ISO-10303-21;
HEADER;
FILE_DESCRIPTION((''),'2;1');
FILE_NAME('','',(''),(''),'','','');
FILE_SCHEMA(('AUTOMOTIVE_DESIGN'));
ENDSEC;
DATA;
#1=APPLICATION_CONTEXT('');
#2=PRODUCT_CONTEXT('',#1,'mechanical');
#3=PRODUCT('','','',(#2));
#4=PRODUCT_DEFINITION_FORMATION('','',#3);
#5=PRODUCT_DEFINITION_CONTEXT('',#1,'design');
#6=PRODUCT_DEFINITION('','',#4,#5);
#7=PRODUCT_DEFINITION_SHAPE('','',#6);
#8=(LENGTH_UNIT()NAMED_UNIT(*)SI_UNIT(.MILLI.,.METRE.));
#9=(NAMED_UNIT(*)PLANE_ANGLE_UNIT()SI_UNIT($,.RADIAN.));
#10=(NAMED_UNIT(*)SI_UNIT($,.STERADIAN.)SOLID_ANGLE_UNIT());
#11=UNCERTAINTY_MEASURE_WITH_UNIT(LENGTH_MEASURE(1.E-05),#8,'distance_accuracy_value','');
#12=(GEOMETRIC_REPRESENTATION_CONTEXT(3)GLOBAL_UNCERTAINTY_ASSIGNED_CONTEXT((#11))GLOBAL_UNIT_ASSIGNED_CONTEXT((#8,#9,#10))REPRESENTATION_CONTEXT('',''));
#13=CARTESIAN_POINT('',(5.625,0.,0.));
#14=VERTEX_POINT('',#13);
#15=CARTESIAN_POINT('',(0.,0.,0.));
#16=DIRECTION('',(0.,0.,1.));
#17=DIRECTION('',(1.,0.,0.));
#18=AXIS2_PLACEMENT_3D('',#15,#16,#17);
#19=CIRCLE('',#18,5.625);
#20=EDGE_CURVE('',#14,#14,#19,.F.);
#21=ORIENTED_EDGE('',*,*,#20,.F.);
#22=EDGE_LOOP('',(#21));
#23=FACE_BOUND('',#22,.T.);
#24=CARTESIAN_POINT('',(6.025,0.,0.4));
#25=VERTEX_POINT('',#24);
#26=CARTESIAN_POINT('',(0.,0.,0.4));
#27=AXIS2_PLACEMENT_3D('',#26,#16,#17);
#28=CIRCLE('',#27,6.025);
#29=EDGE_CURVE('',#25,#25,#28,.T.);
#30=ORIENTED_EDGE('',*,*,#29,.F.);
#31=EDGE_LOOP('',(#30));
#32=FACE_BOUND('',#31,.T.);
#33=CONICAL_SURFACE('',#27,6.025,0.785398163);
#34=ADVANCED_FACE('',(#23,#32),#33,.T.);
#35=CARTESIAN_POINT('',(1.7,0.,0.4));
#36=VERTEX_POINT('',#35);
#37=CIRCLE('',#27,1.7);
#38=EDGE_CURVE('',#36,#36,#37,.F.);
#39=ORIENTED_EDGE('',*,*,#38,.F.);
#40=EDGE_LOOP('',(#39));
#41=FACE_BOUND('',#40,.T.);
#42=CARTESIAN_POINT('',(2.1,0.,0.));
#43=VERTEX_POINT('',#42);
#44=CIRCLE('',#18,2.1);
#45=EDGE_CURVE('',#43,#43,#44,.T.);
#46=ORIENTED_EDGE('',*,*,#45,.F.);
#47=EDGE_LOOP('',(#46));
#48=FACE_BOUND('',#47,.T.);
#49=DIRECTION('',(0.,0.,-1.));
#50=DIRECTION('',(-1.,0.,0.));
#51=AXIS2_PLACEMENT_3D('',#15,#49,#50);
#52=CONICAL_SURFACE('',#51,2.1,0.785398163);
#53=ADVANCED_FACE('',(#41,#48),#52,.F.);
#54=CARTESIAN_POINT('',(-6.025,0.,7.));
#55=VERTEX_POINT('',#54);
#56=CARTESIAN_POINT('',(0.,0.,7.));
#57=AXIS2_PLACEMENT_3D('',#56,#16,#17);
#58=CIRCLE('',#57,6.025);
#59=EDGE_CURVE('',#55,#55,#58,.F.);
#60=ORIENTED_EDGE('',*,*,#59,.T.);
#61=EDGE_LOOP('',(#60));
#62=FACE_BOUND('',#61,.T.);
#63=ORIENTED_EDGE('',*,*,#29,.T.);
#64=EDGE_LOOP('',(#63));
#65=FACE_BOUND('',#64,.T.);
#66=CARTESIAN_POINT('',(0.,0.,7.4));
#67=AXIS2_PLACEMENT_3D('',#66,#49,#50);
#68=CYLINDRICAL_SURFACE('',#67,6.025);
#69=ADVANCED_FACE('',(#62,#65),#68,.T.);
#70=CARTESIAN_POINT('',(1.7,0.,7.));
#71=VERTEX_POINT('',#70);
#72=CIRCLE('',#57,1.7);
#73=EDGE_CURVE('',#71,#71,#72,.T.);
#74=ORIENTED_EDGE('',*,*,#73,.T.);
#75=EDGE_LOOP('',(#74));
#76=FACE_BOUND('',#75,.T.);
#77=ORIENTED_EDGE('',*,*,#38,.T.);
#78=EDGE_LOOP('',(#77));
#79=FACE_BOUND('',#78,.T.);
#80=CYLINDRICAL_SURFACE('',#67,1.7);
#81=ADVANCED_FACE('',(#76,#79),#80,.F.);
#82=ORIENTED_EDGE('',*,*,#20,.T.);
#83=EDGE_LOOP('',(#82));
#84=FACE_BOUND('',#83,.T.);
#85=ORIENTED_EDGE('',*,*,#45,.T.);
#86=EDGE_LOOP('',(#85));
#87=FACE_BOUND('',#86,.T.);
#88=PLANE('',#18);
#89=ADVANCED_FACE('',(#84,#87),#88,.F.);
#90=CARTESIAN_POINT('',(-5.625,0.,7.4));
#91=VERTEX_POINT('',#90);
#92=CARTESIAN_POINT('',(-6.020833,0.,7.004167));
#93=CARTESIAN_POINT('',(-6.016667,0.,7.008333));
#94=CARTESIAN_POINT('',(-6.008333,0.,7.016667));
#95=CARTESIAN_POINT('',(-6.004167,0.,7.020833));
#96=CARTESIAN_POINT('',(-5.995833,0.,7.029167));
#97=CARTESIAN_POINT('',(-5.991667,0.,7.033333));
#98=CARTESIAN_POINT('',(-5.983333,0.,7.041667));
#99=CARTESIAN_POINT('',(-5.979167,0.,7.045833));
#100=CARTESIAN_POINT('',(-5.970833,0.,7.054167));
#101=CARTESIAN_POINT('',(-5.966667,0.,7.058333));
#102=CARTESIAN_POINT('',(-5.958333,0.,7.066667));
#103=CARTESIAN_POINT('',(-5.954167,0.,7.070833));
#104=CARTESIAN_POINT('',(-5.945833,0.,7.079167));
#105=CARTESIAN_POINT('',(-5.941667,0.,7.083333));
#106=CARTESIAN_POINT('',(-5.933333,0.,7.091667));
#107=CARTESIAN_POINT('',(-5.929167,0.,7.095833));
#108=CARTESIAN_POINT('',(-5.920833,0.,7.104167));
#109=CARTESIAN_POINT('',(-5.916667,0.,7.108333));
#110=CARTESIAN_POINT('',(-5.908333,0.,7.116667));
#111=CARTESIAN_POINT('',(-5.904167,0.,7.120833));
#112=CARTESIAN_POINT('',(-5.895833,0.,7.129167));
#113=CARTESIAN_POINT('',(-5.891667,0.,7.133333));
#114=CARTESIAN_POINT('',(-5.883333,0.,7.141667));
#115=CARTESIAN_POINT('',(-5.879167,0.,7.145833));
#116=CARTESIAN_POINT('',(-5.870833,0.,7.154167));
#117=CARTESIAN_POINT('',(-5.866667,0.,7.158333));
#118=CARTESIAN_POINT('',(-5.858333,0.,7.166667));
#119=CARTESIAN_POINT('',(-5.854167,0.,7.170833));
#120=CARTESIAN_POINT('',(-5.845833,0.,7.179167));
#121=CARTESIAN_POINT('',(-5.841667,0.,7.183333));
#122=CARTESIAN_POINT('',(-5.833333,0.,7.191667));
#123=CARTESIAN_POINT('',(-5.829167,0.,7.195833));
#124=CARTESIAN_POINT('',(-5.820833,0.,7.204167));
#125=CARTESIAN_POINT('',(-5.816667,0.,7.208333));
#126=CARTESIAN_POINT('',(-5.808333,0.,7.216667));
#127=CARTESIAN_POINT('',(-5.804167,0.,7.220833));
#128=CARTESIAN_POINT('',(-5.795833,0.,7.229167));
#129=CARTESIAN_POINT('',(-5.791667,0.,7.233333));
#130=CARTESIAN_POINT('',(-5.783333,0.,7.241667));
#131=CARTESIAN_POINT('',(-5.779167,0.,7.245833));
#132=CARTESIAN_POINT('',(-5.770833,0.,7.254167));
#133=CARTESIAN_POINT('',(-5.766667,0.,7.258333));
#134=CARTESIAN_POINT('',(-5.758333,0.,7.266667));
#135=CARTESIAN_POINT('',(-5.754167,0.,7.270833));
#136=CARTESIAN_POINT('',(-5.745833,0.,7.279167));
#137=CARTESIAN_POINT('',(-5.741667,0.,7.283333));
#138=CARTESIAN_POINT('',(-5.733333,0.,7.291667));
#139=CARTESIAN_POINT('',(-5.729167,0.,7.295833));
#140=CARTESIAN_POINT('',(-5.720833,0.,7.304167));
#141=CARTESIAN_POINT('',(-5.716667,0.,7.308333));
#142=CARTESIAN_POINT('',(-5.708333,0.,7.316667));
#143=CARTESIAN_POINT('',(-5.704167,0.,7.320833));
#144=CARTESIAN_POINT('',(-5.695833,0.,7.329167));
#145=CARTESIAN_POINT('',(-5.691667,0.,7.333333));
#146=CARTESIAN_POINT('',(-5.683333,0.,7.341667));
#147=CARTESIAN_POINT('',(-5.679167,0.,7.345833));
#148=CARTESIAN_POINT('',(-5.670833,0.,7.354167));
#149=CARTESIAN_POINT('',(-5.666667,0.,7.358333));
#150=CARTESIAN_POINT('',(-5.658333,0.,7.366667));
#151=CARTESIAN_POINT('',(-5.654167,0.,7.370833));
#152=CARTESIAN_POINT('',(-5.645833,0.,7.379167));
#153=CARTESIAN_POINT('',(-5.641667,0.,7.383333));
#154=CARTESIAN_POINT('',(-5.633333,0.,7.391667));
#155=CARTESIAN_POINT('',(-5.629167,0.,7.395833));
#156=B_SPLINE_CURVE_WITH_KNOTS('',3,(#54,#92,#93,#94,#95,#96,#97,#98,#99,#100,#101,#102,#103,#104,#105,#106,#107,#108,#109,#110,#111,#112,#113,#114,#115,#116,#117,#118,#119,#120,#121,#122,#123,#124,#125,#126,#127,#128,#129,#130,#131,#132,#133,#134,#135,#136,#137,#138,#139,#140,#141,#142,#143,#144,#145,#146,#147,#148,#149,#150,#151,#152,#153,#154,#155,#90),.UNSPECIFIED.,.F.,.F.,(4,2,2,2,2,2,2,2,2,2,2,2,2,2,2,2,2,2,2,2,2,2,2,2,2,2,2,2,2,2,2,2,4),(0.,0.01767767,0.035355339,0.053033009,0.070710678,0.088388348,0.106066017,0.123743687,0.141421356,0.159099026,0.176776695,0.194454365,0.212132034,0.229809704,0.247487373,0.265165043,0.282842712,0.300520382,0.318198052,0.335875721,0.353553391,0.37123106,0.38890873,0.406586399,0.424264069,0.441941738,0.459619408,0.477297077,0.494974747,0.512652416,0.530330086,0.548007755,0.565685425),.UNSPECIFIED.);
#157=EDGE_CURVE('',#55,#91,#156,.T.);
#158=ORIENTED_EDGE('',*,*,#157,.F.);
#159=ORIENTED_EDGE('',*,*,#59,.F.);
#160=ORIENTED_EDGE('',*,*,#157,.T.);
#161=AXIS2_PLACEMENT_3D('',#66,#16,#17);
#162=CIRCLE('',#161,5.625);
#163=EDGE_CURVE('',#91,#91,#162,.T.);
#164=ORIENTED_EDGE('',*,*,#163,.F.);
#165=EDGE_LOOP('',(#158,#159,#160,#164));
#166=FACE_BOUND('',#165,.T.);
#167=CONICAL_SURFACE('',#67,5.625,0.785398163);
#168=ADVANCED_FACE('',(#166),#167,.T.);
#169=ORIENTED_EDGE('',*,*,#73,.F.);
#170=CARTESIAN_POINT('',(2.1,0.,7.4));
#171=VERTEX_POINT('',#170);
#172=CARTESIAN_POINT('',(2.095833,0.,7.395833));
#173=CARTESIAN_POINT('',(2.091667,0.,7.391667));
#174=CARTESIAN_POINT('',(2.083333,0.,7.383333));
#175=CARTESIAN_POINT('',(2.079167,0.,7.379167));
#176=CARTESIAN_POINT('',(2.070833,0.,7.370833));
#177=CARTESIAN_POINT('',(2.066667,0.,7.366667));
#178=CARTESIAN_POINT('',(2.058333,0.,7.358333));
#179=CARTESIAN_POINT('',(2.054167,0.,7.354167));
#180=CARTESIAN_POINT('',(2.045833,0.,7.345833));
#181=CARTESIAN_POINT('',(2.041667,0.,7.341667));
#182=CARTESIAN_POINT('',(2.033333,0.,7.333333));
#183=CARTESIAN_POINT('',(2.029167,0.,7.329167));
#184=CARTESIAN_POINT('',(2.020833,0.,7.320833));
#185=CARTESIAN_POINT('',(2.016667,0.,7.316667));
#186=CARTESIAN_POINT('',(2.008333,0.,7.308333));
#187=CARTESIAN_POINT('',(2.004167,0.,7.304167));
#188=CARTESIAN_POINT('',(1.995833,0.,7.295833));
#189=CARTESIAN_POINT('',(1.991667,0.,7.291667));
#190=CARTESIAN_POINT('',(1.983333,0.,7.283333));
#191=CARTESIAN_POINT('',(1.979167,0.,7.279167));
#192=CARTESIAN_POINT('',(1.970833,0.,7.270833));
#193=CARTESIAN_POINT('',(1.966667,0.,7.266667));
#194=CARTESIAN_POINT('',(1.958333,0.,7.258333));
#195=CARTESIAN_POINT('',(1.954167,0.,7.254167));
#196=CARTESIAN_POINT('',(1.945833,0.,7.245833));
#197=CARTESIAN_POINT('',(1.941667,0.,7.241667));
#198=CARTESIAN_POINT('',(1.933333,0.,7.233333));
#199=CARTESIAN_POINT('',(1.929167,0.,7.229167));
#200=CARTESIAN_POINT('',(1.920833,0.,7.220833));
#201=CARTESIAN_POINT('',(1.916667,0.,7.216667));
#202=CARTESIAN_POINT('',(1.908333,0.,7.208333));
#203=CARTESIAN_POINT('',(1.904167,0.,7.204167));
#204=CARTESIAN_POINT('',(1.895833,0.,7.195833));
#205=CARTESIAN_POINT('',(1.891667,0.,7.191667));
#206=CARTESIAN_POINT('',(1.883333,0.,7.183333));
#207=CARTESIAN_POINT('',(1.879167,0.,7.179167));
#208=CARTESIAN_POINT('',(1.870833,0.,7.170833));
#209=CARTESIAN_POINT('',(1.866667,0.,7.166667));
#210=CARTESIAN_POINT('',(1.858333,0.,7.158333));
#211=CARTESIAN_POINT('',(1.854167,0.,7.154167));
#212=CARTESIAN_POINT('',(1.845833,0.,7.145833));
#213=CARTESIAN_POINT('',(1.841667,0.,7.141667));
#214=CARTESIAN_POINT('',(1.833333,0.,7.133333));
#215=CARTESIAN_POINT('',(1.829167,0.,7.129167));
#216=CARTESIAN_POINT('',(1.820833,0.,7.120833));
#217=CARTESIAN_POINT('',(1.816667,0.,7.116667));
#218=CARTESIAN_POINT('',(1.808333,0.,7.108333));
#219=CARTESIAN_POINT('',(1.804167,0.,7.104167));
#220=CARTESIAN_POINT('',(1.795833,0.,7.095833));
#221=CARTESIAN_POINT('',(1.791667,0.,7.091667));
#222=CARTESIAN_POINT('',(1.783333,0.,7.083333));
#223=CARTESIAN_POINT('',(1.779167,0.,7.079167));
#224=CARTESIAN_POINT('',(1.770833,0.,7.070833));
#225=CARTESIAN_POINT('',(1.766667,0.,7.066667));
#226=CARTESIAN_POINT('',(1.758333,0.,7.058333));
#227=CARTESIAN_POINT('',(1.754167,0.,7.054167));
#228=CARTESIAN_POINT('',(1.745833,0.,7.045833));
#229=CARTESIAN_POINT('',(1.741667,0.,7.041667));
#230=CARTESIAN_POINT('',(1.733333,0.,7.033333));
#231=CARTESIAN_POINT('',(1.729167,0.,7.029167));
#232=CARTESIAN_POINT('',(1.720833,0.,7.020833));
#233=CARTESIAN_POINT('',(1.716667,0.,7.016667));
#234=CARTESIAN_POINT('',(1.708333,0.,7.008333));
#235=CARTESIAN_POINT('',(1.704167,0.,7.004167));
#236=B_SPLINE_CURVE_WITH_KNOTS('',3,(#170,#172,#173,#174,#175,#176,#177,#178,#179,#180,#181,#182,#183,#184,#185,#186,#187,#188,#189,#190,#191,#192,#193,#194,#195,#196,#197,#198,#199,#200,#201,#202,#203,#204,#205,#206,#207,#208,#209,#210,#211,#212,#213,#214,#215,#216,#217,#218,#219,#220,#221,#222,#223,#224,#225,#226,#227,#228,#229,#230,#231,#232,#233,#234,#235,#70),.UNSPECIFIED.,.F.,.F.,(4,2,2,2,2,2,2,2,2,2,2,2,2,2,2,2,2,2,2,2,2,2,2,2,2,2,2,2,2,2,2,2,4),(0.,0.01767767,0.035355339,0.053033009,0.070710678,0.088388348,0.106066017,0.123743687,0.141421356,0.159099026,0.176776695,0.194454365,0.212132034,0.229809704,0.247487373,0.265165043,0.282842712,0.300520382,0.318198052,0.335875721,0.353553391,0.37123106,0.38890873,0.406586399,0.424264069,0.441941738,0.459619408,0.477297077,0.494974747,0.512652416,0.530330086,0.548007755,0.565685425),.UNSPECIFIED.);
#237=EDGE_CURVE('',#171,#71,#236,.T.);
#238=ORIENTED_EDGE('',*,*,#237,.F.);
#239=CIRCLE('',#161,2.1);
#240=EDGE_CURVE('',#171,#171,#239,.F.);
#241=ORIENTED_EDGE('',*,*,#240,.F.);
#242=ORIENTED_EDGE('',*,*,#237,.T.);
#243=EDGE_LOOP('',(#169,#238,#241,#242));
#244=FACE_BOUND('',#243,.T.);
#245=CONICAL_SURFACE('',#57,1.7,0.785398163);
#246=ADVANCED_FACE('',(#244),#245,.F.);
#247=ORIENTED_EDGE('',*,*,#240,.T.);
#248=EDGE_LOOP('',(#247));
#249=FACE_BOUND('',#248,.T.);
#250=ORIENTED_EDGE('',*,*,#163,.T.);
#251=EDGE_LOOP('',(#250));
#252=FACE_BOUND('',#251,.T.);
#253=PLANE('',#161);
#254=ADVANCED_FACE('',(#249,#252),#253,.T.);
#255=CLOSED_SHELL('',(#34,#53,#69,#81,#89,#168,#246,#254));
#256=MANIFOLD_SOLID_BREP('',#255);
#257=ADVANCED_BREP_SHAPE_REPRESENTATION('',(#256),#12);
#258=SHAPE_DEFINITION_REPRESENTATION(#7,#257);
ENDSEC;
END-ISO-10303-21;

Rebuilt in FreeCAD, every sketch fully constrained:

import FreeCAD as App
import Part
import Sketcher
from FreeCAD import Vector


def edges_at(feature, points):
    """Names of the edges that pass closest to the given points."""
    edges = feature.Shape.Edges
    near = lambda p: min(range(len(edges)), key=lambda i: edges[i].distToShape(Part.Vertex(*p))[0])
    return sorted({f"Edge{near(p) + 1}" for p in points})

doc = App.newDocument("Part")
body = doc.addObject("PartDesign::Body", "Body")

sketch1 = body.newObject("Sketcher::SketchObject", "Sketch")
sketch1.AttachmentSupport = (doc.getObject("XY_Plane"), [""])
sketch1.MapMode = "FlatFace"
sketch1.addGeometry([
    Part.Circle(Vector(0, 0, 0), Vector(0, 0, 1), 6.025),
    Part.Circle(Vector(0, 0, 0), Vector(0, 0, 1), 1.7),
], False)
sketch1.addConstraint([
    Sketcher.Constraint("Coincident", 0, 3, -1, 1),
    Sketcher.Constraint("Coincident", 1, 3, -1, 1),
    Sketcher.Constraint("Diameter", 1, 3.4),
    Sketcher.Constraint("Diameter", 0, 12.05),
])
pad1 = body.newObject("PartDesign::Pad", "Pad")
pad1.Profile = sketch1
pad1.Length = 7.4
doc.recompute()

chamfer = body.newObject("PartDesign::Chamfer", "Chamfer")
chamfer.Base = (pad1, edges_at(pad1, [
    (-6.025, 0, 0),
    (-6.025, 0, 7.4),
    (-1.7, 0, 0),
    (-1.7, 0, 7.4),
]))
chamfer.Size = 0.4

doc.recompute()
